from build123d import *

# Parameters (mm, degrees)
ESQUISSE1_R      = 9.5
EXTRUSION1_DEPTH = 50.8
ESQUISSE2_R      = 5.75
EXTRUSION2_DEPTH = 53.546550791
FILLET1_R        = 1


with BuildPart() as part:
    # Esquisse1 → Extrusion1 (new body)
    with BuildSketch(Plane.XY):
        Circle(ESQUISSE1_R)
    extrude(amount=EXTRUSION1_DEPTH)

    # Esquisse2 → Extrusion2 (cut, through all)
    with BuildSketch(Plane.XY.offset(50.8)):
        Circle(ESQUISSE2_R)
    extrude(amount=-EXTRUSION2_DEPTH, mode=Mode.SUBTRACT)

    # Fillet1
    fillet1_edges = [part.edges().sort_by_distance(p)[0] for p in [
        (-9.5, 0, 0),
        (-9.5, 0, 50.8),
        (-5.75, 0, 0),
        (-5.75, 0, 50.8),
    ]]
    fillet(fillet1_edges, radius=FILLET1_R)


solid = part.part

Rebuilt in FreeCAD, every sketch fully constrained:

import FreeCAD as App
import Part
import Sketcher
from FreeCAD import Vector
Q = App.Units.Quantity


def edges_at(feature, points):
    """Names of the edges that pass closest to the given points."""
    edges = feature.Shape.Edges
    near = lambda p: min(range(len(edges)), key=lambda i: edges[i].distToShape(Part.Vertex(*p))[0])
    return sorted({f"Edge{near(p) + 1}" for p in points})

doc = App.newDocument("Part")
body = doc.addObject("PartDesign::Body", "Body")

sketch1 = body.newObject("Sketcher::SketchObject", "Sketch")
sketch1.AttachmentSupport = (doc.getObject("XY_Plane"), [""])
sketch1.MapMode = "FlatFace"
sketch1.addGeometry(Part.Circle(Vector(0, 0, 0), Vector(0, 0, 1), 10), False)
sketch1.addConstraint(Sketcher.Constraint("Coincident", 0, 3, -1, 1))
sketch1.addConstraint(Sketcher.Constraint("Diameter", 0, Q("19 mm")))
pad1 = body.newObject("PartDesign::Pad", "Pad")
pad1.Profile = sketch1
pad1.Length = 50.8

sketch2 = body.newObject("Sketcher::SketchObject", "Sketch001")
sketch2.AttachmentSupport = (doc.getObject("XY_Plane"), [""])
sketch2.MapMode = "FlatFace"
sketch2.AttachmentOffset = App.Placement(Vector(0, 0, 50.8), App.Rotation())
sketch2.addGeometry(Part.Circle(Vector(0, 0, 0), Vector(0, 0, 1), 6), False)
sketch2.addConstraint(Sketcher.Constraint("Coincident", 0, 3, -1, 1))
sketch2.addConstraint(Sketcher.Constraint("Diameter", 0, Q("11.5 mm")))
pocket1 = body.newObject("PartDesign::Pocket", "Pocket")
pocket1.Profile = sketch2
pocket1.Type = "ThroughAll"
doc.recompute()

fillet = body.newObject("PartDesign::Fillet", "Fillet")
fillet.Base = (pocket1, edges_at(pocket1, [
    (-9.5, 0, 0),
    (-9.5, 0, 50.8),
    (-5.75, 0, 0),
    (-5.75, 0, 50.8),
]))
fillet.Radius = 1

doc.recompute()
